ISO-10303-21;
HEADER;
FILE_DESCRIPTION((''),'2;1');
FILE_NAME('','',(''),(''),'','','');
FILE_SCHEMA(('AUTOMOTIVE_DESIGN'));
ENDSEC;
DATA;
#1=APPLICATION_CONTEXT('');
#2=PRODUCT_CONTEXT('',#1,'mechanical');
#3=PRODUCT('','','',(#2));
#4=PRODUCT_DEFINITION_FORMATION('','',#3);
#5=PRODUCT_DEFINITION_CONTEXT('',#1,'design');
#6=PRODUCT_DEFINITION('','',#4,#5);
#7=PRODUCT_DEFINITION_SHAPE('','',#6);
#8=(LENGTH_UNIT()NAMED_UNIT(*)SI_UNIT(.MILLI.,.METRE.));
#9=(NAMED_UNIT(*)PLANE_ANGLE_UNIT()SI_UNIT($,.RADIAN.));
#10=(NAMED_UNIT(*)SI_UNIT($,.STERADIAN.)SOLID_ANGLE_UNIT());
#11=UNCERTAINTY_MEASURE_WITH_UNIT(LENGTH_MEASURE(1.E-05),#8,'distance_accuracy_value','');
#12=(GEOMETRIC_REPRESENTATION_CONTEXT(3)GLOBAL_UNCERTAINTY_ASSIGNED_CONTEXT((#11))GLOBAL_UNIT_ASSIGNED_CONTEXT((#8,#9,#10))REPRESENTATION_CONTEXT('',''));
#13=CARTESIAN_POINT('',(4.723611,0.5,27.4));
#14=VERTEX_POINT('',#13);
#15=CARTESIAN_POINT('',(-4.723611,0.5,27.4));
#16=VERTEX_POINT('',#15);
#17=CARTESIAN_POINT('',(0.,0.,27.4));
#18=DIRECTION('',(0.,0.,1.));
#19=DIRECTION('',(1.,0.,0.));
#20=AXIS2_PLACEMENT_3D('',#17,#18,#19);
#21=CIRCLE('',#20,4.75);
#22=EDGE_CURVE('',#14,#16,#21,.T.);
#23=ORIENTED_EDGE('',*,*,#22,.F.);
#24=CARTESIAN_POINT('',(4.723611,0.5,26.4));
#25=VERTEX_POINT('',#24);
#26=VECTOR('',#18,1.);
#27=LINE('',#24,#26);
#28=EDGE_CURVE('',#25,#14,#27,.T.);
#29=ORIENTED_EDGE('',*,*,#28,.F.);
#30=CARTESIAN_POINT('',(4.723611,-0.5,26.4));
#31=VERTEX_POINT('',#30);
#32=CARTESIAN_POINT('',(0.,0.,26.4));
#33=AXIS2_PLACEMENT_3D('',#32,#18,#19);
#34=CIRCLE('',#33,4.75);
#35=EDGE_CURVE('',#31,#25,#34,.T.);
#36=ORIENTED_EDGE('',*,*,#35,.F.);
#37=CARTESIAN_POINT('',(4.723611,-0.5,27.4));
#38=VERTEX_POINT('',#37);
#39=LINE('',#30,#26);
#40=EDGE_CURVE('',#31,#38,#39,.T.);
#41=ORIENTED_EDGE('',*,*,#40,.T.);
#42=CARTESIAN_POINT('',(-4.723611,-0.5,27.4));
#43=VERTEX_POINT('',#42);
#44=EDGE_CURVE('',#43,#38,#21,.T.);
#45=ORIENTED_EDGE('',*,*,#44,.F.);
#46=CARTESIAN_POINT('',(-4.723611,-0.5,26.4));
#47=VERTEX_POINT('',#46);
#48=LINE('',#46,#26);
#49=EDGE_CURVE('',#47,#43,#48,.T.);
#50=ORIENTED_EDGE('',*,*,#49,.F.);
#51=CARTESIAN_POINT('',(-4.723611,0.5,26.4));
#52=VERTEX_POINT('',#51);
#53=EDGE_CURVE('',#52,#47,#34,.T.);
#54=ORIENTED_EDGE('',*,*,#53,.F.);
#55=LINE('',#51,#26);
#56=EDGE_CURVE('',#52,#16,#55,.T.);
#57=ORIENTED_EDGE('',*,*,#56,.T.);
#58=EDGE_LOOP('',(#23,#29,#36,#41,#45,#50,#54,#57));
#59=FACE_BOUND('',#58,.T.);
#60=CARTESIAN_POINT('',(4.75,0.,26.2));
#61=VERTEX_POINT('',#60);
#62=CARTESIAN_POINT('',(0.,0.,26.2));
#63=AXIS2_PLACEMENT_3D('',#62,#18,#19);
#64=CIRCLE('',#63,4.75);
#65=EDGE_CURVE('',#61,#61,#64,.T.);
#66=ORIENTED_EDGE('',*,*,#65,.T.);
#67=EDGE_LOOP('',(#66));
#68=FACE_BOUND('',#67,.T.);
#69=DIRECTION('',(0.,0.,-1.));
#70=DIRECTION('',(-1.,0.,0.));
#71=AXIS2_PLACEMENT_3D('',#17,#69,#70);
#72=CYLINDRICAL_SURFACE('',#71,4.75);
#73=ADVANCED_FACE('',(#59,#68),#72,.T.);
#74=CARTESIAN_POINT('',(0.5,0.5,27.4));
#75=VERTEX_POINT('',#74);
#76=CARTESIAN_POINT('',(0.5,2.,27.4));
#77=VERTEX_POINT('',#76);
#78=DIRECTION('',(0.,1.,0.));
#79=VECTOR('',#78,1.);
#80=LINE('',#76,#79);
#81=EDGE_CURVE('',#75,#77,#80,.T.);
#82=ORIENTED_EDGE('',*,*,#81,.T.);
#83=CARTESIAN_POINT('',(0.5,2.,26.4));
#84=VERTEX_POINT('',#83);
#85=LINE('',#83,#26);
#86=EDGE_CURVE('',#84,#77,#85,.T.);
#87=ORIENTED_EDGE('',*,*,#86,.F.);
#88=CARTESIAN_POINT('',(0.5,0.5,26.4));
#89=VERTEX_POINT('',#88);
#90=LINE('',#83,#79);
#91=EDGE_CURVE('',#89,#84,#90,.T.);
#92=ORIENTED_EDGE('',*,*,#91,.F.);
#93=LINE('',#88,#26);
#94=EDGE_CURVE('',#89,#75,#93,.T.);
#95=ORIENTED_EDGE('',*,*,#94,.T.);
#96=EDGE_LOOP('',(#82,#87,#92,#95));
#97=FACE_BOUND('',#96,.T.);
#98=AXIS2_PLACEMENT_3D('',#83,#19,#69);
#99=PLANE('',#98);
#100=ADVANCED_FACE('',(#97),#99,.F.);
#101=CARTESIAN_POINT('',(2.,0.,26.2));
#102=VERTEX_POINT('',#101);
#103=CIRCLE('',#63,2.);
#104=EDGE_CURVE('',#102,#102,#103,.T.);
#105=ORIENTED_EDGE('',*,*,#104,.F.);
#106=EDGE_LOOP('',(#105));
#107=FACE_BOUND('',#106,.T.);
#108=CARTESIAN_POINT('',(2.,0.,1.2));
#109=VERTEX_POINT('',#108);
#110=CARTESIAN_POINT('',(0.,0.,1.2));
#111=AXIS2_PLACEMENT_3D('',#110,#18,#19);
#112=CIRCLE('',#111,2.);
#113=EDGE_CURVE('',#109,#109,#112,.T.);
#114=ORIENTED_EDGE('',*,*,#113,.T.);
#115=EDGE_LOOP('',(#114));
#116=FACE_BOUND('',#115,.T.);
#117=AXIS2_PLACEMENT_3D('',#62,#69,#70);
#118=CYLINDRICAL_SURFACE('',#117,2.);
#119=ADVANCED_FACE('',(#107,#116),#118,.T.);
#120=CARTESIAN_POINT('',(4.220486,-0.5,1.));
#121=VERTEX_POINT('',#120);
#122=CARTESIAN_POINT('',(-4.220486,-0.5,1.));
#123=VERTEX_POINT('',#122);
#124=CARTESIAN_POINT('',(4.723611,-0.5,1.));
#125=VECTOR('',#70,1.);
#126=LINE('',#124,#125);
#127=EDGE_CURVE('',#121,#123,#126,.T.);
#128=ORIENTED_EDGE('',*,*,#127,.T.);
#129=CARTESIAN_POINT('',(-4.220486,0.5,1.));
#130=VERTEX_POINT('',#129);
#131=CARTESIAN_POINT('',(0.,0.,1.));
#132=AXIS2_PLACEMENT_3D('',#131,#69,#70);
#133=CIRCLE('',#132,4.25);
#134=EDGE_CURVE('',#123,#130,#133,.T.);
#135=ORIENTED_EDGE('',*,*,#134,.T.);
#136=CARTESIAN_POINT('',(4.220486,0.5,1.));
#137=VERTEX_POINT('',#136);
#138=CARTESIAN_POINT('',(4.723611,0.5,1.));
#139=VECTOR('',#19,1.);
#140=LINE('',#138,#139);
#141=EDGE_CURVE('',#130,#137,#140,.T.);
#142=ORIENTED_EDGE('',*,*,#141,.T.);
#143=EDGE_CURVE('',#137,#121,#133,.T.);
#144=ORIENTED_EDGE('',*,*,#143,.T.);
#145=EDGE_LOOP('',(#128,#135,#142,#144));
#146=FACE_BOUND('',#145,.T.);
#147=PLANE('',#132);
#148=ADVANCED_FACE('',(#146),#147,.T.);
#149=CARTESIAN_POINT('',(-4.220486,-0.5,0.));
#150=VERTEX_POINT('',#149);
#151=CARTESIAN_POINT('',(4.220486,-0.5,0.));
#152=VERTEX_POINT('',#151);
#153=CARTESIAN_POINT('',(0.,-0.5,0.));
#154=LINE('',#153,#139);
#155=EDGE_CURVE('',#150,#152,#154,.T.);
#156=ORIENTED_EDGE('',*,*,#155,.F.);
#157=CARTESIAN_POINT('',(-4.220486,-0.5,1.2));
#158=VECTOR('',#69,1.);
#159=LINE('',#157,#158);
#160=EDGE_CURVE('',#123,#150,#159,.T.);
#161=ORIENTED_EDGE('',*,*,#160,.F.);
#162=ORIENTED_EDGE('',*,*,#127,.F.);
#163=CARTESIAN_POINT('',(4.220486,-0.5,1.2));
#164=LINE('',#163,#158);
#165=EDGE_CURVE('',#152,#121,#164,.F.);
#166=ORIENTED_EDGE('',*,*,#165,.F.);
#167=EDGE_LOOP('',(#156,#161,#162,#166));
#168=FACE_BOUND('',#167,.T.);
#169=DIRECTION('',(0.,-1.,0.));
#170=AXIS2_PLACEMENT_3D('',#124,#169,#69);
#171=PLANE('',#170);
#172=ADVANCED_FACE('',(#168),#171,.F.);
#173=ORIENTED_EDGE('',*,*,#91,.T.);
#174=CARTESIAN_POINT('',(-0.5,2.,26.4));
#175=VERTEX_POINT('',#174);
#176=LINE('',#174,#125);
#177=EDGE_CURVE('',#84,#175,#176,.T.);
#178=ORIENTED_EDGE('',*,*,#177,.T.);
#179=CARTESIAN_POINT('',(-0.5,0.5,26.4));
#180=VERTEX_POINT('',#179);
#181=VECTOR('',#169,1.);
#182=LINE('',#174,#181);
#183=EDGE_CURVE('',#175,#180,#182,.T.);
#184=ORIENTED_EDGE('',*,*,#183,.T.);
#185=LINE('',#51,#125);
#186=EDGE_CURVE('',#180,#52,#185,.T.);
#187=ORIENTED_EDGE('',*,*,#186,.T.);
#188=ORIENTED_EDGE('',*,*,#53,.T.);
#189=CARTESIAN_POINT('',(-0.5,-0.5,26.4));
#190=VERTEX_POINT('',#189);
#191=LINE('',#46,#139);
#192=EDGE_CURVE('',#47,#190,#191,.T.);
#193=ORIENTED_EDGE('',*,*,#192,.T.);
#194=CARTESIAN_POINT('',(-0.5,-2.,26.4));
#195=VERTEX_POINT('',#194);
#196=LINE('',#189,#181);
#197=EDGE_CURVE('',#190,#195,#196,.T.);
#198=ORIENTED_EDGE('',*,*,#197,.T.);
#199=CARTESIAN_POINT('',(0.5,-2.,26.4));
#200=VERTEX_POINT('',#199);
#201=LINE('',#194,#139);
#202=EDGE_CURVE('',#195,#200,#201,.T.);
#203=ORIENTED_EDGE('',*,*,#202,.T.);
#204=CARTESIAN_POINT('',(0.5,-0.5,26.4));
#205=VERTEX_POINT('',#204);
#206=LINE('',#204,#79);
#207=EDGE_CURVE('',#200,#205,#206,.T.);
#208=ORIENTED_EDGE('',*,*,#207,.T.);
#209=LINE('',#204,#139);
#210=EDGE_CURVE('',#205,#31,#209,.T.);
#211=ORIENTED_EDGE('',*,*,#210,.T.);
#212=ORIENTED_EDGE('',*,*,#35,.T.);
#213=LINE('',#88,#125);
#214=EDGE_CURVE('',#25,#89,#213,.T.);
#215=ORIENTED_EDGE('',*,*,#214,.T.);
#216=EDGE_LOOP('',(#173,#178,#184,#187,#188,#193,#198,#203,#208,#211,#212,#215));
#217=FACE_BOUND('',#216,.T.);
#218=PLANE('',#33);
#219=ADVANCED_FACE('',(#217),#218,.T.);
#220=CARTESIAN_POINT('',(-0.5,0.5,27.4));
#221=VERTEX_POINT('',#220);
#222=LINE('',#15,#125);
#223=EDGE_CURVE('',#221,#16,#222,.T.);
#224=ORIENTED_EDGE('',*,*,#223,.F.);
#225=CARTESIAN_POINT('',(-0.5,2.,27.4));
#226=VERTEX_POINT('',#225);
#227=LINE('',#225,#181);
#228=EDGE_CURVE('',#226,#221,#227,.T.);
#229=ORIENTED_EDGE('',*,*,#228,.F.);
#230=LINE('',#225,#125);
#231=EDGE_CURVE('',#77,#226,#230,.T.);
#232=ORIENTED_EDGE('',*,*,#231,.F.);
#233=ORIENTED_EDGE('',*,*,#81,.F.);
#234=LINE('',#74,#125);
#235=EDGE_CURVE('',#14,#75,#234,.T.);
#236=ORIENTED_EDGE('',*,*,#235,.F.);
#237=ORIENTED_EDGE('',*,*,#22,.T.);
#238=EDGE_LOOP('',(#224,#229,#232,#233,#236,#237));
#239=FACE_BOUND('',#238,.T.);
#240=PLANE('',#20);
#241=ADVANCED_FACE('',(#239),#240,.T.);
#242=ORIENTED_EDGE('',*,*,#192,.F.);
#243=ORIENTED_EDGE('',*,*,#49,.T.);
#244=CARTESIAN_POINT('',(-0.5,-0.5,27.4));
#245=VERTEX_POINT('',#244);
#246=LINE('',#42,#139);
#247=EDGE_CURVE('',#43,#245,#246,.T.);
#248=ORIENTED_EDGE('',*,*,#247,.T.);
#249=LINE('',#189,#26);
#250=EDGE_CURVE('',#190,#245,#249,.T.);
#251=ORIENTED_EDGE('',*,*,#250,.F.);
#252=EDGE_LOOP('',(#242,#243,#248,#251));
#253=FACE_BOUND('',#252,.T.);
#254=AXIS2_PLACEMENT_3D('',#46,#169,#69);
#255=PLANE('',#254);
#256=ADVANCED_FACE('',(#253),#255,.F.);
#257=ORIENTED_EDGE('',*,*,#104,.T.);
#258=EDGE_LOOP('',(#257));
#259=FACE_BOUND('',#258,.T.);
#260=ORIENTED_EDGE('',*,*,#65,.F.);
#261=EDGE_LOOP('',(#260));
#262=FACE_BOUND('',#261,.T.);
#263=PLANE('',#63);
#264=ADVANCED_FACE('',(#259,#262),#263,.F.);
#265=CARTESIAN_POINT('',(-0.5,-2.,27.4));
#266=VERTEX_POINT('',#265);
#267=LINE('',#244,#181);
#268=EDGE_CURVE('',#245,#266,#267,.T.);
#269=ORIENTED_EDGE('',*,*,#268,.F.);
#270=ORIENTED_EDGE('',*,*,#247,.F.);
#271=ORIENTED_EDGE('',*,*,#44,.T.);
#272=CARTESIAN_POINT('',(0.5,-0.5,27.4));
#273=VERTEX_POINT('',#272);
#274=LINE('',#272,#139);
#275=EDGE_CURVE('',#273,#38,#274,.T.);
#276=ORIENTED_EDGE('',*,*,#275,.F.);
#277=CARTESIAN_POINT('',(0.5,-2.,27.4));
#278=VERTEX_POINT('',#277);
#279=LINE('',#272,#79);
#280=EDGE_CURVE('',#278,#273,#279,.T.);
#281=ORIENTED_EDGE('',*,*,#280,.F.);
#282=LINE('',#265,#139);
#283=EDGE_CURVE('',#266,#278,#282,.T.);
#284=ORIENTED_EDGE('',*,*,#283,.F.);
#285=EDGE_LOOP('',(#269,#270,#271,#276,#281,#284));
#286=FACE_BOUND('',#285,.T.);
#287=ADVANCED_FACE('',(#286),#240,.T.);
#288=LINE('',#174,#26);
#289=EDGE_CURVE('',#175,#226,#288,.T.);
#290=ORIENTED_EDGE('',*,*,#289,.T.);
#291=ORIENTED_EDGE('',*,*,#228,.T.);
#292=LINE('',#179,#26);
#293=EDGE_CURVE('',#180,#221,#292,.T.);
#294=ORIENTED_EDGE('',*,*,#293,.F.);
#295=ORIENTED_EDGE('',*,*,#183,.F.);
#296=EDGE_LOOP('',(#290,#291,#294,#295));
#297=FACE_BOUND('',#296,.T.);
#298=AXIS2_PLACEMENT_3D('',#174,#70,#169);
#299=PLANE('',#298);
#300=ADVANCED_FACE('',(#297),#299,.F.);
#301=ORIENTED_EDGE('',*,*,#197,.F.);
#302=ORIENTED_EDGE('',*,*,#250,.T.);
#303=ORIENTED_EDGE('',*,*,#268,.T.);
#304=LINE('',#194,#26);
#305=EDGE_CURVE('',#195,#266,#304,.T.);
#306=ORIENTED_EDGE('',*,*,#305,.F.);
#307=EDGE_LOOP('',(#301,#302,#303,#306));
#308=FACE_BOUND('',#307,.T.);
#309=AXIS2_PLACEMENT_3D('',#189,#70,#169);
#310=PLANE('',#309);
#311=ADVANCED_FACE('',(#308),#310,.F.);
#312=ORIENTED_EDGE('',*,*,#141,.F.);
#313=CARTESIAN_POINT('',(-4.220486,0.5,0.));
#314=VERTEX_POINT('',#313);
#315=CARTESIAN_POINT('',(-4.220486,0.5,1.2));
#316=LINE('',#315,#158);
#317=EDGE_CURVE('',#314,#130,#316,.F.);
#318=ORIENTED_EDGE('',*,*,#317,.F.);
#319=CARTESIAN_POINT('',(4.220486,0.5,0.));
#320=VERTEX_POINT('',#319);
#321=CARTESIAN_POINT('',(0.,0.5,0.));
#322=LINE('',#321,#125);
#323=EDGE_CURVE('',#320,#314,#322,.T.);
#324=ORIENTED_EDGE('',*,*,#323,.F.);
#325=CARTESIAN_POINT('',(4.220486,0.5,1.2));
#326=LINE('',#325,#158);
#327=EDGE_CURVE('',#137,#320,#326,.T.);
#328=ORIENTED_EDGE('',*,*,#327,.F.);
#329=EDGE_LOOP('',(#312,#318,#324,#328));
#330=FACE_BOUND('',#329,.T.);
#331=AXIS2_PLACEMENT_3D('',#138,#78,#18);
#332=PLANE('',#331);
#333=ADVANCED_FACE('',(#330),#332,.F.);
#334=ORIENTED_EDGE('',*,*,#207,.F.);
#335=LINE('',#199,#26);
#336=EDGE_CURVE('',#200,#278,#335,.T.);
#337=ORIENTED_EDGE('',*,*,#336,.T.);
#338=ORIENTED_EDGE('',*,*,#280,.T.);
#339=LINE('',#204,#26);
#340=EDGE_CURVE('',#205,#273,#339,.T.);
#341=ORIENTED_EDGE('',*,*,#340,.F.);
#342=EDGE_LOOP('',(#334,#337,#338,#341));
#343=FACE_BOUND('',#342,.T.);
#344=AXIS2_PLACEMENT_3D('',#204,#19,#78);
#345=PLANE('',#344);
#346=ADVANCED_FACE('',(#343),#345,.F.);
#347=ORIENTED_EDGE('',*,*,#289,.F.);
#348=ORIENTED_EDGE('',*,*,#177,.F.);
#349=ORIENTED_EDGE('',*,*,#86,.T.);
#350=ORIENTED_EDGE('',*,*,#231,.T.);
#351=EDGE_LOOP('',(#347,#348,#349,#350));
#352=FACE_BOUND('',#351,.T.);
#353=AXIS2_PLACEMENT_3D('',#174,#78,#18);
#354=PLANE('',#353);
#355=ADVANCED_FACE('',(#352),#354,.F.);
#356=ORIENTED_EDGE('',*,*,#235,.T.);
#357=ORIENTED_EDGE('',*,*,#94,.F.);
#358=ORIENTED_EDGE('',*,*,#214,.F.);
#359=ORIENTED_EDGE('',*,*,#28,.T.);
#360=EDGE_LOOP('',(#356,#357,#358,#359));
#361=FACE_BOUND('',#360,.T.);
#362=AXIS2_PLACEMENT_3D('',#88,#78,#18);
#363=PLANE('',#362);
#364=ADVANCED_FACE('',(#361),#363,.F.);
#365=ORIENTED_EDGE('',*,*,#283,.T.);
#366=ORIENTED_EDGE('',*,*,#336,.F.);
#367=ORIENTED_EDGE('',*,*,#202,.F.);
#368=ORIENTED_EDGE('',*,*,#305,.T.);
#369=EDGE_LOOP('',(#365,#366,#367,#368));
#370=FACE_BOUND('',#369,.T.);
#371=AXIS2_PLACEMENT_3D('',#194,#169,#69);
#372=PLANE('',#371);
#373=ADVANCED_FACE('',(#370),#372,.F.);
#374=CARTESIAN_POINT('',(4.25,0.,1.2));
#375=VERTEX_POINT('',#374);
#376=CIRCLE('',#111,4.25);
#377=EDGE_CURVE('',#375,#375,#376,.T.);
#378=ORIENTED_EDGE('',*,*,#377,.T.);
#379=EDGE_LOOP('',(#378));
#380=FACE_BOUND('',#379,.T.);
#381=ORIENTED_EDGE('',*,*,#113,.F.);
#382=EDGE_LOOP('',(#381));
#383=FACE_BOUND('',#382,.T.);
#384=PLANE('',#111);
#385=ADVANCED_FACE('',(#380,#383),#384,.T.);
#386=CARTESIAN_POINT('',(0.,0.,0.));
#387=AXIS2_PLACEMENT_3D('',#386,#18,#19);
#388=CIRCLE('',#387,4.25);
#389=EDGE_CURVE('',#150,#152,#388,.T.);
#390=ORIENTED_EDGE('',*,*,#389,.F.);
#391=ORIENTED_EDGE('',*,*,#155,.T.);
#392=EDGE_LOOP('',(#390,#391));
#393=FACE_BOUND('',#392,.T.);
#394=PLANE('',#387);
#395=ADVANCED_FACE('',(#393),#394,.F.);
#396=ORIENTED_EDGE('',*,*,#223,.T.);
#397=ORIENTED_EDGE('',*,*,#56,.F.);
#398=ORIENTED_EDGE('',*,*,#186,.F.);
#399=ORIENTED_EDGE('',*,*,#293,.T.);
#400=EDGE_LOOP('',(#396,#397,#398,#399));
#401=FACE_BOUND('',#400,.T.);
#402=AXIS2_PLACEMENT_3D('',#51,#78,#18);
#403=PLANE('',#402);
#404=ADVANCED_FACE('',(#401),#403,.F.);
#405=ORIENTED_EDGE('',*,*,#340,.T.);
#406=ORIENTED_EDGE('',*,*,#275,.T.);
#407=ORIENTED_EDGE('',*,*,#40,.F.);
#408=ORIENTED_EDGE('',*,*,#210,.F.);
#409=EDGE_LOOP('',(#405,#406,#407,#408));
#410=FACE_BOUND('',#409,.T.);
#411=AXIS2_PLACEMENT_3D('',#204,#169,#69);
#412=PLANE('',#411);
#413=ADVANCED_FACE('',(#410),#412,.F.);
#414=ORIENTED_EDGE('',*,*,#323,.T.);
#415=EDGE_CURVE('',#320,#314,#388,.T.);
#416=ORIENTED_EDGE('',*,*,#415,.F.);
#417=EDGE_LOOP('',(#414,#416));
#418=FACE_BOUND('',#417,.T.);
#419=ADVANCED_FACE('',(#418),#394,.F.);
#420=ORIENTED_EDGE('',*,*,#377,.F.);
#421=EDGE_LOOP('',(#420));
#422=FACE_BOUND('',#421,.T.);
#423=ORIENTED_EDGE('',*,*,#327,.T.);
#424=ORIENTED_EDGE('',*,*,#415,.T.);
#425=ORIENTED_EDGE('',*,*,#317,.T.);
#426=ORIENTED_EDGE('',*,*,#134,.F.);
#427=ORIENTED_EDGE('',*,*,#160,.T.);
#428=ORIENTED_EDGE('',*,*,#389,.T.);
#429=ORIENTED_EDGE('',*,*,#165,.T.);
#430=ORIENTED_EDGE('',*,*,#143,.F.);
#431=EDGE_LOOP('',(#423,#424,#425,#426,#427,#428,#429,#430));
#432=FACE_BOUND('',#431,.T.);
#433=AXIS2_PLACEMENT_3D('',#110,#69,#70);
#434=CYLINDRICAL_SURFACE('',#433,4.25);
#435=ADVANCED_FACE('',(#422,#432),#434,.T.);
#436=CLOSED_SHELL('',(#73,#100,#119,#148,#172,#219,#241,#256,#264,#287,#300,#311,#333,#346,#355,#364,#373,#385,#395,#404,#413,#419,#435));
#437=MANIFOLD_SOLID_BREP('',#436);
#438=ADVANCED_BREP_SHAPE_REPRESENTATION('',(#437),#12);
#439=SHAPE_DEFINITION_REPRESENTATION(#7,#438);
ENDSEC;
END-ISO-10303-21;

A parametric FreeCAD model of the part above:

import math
import FreeCAD as App
import Part
import Sketcher
Q = App.Units.Quantity

doc = App.newDocument("Part")
body = doc.addObject("PartDesign::Body", "Body")

# Sketch on XY plane
sketch1 = doc.addObject("Sketcher::SketchObject", "Sketch")
body.addObject(sketch1)
sketch1.AttachmentSupport = (doc.XY_Plane, [""])
sketch1.MapMode = "FlatFace"
sketch1.addGeometry(Part.Circle(App.Vector(0, 0, 0), App.Vector(0, 0, 1), 4.2), False)
sketch1.addConstraint([
    Sketcher.Constraint("Coincident", 0, 3, -1, 1),
    Sketcher.Constraint("Diameter", 0, Q("8.5 mm")),
])
pad1 = doc.addObject("PartDesign::Pad", "Pad")
body.addObject(pad1)
pad1.Profile = sketch1
pad1.Length = 1.2

# Sketch on XY plane
sketch2 = doc.addObject("Sketcher::SketchObject", "Sketch001")
body.addObject(sketch2)
sketch2.AttachmentSupport = (doc.XY_Plane, [""])
sketch2.MapMode = "FlatFace"
sketch2.AttachmentOffset = App.Placement(App.Vector(0, 0, 1.2), App.Rotation())
sketch2.addGeometry(Part.Circle(App.Vector(0, 0, 0), App.Vector(0, 0, 1), 2), False)
sketch2.addConstraint([
    Sketcher.Constraint("Coincident", 0, 3, -1, 1),
    Sketcher.Constraint("Diameter", 0, Q("4 mm")),
])
pad2 = doc.addObject("PartDesign::Pad", "Pad001")
body.addObject(pad2)
pad2.Profile = sketch2
pad2.Length = 25

# Sketch on XY plane
sketch3 = doc.addObject("Sketcher::SketchObject", "Sketch002")
body.addObject(sketch3)
sketch3.AttachmentSupport = (doc.XY_Plane, [""])
sketch3.MapMode = "FlatFace"
sketch3.AttachmentOffset = App.Placement(App.Vector(0, 0, 26.2), App.Rotation())
sketch3.addGeometry(Part.Circle(App.Vector(0, 0, 0), App.Vector(0, 0, 1), 4.8), False)
sketch3.addConstraint([
    Sketcher.Constraint("Coincident", 0, 3, -1, 1),
    Sketcher.Constraint("Diameter", 0, Q("9.5 mm")),
])
pad3 = doc.addObject("PartDesign::Pad", "Pad002")
body.addObject(pad3)
pad3.Profile = sketch3
pad3.Length = 1.2

# Sketch on XY plane
sketch4 = doc.addObject("Sketcher::SketchObject", "Sketch003")
body.addObject(sketch4)
sketch4.AttachmentSupport = (doc.XY_Plane, [""])
sketch4.MapMode = "FlatFace"
sketch4.AttachmentOffset = App.Placement(App.Vector(0, 0, 26.4), App.Rotation())
sketch4.addGeometry([
    Part.LineSegment(App.Vector(-0.5, 2, 0), App.Vector(-0.5, 0.5, 0)),  # 0
    Part.LineSegment(App.Vector(-0.5, 0.5, 0), App.Vector(-4.7, 0.5, 0)),  # 1
    Part.ArcOfCircle(Part.Circle(App.Vector(0, 0, 0), App.Vector(0, 0, 1), 4.8), math.radians(173.96), math.radians(186.04)),  # 2
    Part.LineSegment(App.Vector(-4.7, -0.5, 0), App.Vector(-0.5, -0.5, 0)),  # 3
    Part.LineSegment(App.Vector(-0.5, -0.5, 0), App.Vector(-0.5, -2, 0)),  # 4
    Part.LineSegment(App.Vector(-0.5, -2, 0), App.Vector(0.5, -2, 0)),  # 5
    Part.LineSegment(App.Vector(0.5, -2, 0), App.Vector(0.5, -0.5, 0)),  # 6
    Part.LineSegment(App.Vector(0.5, -0.5, 0), App.Vector(4.7, -0.5, 0)),  # 7
    Part.ArcOfCircle(Part.Circle(App.Vector(0, 0, 0), App.Vector(0, 0, 1), 4.8), math.radians(-6.04), math.radians(6.04)),  # 8
    Part.LineSegment(App.Vector(4.7, 0.5, 0), App.Vector(0.5, 0.5, 0)),  # 9
    Part.LineSegment(App.Vector(0.5, 0.5, 0), App.Vector(0.5, 2, 0)),  # 10
    Part.LineSegment(App.Vector(0.5, 2, 0), App.Vector(-0.5, 2, 0)),  # 11
], False)
sketch4.addConstraint([
    Sketcher.Constraint("Coincident", 0, 2, 1, 1),
    Sketcher.Constraint("Coincident", 1, 2, 2, 1),
    Sketcher.Constraint("Coincident", 2, 2, 3, 1),
    Sketcher.Constraint("Coincident", 3, 2, 4, 1),
    Sketcher.Constraint("Coincident", 4, 2, 5, 1),
    Sketcher.Constraint("Coincident", 5, 2, 6, 1),
    Sketcher.Constraint("Coincident", 6, 2, 7, 1),
    Sketcher.Constraint("Coincident", 7, 2, 8, 1),
    Sketcher.Constraint("Coincident", 8, 2, 9, 1),
    Sketcher.Constraint("Coincident", 9, 2, 10, 1),
    Sketcher.Constraint("Coincident", 10, 2, 11, 1),
    Sketcher.Constraint("Coincident", 11, 2, 0, 1),
    Sketcher.Constraint("Vertical", 0),
    Sketcher.Constraint("Horizontal", 1),
    Sketcher.Constraint("Horizontal", 3),
    Sketcher.Constraint("Vertical", 4),
    Sketcher.Constraint("Horizontal", 5),
    Sketcher.Constraint("Vertical", 6),
    Sketcher.Constraint("Horizontal", 7),
    Sketcher.Constraint("Horizontal", 9),
    Sketcher.Constraint("Vertical", 10),
    Sketcher.Constraint("Horizontal", 11),
    Sketcher.Constraint("Coincident", 2, 3, -1, 1),
    Sketcher.Constraint("Coincident", 8, 3, -1, 1),
    Sketcher.Constraint("Equal", 2, 8),
    Sketcher.Constraint("Symmetric", 0, 2, 6, 2, -1, 1),
    Sketcher.Constraint("Symmetric", 3, 2, 9, 2, -1, 1),
    Sketcher.Constraint("Symmetric", 3, 2, 6, 2, -2),
    Sketcher.Constraint("Equal", 0, 4),
    Sketcher.Constraint("DistanceX", 5, 1, 5, 2, Q("1 mm")),
    Sketcher.Constraint("Radius", 2, Q("4.75 mm")),
    Sketcher.Constraint("DistanceY", 0, 2, 0, 1, Q("1.5 mm")),
    Sketcher.Constraint("DistanceY", 4, 2, -1, 1, Q("2 mm")),
])
pocket1 = doc.addObject("PartDesign::Pocket", "Pocket")
body.addObject(pocket1)
pocket1.Profile = sketch4
pocket1.Length = 1
pocket1.Reversed = True

# Sketch on XY plane
sketch5 = doc.addObject("Sketcher::SketchObject", "Sketch004")
body.addObject(sketch5)
sketch5.AttachmentSupport = (doc.XY_Plane, [""])
sketch5.MapMode = "FlatFace"
sketch5.addGeometry([
    Part.LineSegment(App.Vector(4.7, -0.5, 0), App.Vector(-4.7, -0.5, 0)),
    Part.ArcOfCircle(Part.Circle(App.Vector(0, 0, 0), App.Vector(0, 0, 1), 4.8), math.radians(173.96), math.radians(186.04)),
    Part.LineSegment(App.Vector(-4.7, 0.5, 0), App.Vector(4.7, 0.5, 0)),
    Part.ArcOfCircle(Part.Circle(App.Vector(0, 0, 0), App.Vector(0, 0, 1), 4.8), math.radians(-6.04), math.radians(6.04)),
], False)
sketch5.addConstraint([
    Sketcher.Constraint("Coincident", 0, 2, 1, 2),
    Sketcher.Constraint("Coincident", 1, 1, 2, 1),
    Sketcher.Constraint("Coincident", 2, 2, 3, 2),
    Sketcher.Constraint("Coincident", 3, 1, 0, 1),
    Sketcher.Constraint("Horizontal", 0),
    Sketcher.Constraint("Horizontal", 2),
    Sketcher.Constraint("Coincident", 1, 3, -1, 1),
    Sketcher.Constraint("Coincident", 3, 3, -1, 1),
    Sketcher.Constraint("Equal", 1, 3),
    Sketcher.Constraint("Vertical", 0, 2, 1, 1),
    Sketcher.Constraint("Radius", 1, Q("4.75 mm")),
    Sketcher.Constraint("DistanceY", 0, 2, 1, 1, Q("1 mm")),
])
pocket2 = doc.addObject("PartDesign::Pocket", "Pocket001")
body.addObject(pocket2)
pocket2.Profile = sketch5
pocket2.Length = 1
pocket2.Reversed = True

doc.recompute()
